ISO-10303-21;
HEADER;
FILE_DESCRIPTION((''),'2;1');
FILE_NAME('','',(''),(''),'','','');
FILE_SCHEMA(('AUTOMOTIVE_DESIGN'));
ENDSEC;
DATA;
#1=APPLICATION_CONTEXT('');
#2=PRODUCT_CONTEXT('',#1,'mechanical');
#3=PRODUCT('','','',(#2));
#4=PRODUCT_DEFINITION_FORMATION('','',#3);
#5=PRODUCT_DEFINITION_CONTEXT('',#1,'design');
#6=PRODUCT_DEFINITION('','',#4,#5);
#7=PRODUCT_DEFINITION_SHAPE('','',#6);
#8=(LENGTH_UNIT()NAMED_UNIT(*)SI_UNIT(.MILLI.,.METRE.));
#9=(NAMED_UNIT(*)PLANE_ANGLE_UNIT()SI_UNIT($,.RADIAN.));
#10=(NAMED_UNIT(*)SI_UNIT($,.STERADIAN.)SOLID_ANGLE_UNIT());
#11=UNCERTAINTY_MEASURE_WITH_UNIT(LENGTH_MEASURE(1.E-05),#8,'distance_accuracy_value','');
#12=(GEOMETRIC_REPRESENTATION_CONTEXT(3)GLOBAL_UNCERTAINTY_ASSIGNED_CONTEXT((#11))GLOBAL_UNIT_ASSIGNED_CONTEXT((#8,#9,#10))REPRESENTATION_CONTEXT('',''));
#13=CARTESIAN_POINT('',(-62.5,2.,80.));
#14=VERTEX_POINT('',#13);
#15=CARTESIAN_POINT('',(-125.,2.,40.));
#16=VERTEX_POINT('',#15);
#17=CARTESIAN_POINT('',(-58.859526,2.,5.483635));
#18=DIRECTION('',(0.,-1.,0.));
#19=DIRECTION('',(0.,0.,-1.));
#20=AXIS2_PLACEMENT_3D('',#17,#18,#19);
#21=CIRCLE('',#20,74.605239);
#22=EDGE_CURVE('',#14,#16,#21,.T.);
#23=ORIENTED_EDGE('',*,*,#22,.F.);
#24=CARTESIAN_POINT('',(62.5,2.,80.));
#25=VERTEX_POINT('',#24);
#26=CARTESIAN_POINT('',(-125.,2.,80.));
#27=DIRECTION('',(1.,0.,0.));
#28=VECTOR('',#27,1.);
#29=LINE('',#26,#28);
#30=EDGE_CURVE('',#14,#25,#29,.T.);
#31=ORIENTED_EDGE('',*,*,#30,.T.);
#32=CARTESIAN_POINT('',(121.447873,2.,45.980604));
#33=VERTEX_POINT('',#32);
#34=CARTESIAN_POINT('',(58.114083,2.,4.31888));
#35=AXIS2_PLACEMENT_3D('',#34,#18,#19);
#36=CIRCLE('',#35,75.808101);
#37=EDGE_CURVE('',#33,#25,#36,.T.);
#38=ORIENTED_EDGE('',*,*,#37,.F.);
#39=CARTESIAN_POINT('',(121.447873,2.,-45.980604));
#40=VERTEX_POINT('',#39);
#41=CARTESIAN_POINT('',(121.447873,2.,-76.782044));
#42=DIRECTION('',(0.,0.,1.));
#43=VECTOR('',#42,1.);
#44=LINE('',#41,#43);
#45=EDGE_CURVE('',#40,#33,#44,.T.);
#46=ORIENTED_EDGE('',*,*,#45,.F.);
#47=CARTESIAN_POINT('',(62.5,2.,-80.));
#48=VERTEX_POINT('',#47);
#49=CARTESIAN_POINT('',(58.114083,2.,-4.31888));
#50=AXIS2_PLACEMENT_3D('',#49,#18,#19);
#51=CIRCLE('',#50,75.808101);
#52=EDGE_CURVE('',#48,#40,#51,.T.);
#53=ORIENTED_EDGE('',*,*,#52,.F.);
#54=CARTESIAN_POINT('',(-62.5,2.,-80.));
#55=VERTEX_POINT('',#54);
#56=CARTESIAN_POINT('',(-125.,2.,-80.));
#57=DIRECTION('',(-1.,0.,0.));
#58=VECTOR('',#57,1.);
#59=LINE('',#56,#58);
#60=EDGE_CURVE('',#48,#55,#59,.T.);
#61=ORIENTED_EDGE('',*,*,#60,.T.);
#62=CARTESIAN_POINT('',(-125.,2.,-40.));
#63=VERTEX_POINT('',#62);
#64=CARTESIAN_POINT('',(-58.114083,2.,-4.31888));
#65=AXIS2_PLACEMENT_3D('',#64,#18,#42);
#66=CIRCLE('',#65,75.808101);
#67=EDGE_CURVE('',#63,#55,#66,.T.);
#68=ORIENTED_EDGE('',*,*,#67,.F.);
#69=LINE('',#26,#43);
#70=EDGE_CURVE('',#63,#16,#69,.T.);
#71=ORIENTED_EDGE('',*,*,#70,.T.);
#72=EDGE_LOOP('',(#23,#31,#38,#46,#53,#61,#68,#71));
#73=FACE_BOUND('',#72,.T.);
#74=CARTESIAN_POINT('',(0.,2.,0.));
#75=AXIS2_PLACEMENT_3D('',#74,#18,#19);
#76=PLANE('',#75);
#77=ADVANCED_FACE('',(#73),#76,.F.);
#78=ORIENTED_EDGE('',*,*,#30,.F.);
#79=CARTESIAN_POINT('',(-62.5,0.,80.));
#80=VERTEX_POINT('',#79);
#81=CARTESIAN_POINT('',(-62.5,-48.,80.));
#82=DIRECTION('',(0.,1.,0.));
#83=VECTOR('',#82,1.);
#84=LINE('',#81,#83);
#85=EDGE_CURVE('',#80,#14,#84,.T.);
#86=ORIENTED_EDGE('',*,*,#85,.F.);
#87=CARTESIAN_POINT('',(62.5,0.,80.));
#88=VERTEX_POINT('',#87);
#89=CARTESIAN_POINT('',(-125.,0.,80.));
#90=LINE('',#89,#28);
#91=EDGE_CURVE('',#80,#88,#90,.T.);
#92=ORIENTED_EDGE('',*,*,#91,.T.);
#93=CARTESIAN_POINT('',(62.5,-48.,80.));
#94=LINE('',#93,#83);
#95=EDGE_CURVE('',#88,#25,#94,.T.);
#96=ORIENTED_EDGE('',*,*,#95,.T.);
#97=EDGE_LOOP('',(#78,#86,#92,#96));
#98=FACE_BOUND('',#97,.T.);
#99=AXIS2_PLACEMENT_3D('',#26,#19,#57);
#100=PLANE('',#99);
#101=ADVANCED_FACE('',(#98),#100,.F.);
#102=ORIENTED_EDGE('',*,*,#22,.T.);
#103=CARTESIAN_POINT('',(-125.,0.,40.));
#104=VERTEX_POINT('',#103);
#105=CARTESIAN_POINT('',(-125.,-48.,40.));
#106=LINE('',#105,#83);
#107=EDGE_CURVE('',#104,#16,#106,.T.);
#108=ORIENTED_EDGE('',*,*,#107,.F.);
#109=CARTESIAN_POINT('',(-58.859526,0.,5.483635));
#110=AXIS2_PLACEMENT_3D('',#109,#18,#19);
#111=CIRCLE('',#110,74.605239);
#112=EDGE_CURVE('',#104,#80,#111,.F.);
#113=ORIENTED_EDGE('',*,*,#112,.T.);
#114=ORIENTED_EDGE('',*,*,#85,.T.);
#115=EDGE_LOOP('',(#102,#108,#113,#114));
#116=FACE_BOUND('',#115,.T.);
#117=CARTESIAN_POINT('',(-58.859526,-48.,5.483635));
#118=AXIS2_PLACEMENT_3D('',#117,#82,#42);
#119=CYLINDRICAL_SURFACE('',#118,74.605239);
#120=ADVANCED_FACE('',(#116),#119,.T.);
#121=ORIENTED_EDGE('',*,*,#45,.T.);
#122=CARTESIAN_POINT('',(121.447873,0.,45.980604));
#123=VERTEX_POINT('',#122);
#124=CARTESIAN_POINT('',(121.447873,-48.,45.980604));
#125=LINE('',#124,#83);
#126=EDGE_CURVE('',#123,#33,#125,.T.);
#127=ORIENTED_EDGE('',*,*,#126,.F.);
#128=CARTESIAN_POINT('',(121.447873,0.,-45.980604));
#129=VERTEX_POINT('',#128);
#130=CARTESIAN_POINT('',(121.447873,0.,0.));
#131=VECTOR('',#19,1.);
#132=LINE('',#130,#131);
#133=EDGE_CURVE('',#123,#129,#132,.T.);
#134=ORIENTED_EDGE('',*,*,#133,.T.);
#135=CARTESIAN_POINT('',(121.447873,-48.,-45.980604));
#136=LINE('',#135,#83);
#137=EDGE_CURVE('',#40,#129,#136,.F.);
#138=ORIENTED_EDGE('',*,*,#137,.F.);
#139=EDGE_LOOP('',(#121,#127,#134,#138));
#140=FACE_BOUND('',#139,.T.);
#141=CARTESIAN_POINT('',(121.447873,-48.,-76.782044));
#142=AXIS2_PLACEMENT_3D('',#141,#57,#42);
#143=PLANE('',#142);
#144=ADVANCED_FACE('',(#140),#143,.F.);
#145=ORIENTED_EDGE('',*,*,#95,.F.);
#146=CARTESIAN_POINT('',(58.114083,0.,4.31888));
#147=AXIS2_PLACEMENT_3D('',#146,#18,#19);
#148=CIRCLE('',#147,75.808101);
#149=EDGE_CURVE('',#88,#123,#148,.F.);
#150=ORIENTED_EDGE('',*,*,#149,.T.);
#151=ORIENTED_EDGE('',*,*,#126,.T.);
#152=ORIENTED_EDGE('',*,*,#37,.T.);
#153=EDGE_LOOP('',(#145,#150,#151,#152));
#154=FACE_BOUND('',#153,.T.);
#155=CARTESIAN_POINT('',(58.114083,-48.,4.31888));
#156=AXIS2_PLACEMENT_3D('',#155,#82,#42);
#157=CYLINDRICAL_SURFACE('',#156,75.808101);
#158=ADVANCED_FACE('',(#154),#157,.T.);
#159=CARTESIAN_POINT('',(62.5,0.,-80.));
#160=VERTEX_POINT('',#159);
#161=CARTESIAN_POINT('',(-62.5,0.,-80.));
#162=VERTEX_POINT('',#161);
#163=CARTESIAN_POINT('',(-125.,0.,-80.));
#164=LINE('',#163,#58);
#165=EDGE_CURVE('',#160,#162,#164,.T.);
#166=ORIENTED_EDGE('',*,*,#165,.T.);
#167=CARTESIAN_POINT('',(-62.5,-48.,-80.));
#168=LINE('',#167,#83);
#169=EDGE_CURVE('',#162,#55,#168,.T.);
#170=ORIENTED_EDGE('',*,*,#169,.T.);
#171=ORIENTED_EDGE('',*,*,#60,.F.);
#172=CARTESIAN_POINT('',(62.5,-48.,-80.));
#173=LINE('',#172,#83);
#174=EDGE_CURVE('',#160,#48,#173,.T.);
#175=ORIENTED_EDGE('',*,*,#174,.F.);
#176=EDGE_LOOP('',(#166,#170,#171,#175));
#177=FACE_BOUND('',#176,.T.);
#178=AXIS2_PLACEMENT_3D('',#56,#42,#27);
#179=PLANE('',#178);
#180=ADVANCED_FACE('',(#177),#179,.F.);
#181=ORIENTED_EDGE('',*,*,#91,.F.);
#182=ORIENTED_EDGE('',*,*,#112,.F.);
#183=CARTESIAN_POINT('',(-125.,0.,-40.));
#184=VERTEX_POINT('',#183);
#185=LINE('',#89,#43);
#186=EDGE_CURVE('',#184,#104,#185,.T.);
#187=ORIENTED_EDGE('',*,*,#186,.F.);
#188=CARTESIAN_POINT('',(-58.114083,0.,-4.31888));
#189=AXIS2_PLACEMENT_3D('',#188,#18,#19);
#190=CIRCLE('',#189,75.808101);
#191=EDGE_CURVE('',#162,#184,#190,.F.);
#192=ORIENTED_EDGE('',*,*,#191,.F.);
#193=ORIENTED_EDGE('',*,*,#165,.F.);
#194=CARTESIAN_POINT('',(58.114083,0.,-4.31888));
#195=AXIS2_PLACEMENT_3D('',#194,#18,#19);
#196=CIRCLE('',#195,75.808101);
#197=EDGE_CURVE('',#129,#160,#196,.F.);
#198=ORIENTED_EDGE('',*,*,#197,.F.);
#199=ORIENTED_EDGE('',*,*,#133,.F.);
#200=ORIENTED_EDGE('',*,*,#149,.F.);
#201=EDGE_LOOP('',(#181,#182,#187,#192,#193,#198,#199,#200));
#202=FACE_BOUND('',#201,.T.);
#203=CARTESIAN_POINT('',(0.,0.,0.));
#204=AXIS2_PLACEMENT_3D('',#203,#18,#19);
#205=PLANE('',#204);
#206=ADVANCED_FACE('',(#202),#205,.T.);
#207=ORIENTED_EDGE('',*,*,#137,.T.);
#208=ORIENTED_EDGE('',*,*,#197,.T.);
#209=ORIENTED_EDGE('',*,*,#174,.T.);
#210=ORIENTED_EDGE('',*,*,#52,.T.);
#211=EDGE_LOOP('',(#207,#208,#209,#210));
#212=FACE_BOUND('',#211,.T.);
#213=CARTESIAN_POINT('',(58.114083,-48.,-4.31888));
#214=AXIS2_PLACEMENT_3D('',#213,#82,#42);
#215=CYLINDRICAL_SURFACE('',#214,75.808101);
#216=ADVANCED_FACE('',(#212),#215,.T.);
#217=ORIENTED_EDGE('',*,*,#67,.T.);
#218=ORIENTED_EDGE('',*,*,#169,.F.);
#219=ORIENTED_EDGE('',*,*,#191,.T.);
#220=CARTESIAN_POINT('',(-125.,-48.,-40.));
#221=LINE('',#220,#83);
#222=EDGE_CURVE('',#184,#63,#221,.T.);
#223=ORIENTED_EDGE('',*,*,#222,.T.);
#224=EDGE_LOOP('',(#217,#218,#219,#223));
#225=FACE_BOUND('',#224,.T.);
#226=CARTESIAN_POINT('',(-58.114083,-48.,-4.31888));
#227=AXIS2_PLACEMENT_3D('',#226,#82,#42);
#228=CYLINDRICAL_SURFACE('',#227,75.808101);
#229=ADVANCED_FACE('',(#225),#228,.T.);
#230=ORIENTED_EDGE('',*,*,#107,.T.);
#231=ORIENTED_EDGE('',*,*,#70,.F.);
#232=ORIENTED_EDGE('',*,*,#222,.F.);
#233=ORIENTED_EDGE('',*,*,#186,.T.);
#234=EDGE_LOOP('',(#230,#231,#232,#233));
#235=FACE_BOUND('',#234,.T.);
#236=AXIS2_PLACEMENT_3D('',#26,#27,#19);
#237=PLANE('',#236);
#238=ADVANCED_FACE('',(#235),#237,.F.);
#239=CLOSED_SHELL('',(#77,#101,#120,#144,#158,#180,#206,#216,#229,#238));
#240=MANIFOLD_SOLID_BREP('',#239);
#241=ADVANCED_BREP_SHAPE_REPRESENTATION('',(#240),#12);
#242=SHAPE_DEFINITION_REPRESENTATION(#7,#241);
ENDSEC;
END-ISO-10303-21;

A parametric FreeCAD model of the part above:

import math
import FreeCAD as App
import Part
import Sketcher

V = App.Vector
Q = App.Units.Quantity


def add_polygon(sketch, points):
    """Adds a closed chain of lines whose ends are joined by coincident constraints."""
    first, n = sketch.GeometryCount, len(points)
    for a, b in zip(points, points[1:] + points[:1]):
        sketch.addGeometry(Part.LineSegment(App.Vector(*a, 0), App.Vector(*b, 0)), False)
    for i in range(n):
        sketch.addConstraint(Sketcher.Constraint("Coincident", first + i, 2, first + (i + 1) % n, 1))

doc = App.newDocument("Part")
body = doc.addObject("PartDesign::Body", "Body")

sketch1 = body.newObject("Sketcher::SketchObject", "Sketch")
sketch1.AttachmentSupport = (doc.getObject("XZ_Plane"), [""])
sketch1.MapMode = "FlatFace"
add_polygon(sketch1, [(-125, -80), (-125, 80), (125, 80), (125, -80)])
sketch1.addConstraint([
    Sketcher.Constraint("Vertical", 0),
    Sketcher.Constraint("Horizontal", 1),
    Sketcher.Constraint("Vertical", 2),
    Sketcher.Constraint("Horizontal", 3),
    Sketcher.Constraint("Symmetric", 0, 2, 2, 2, -1, 1),
    Sketcher.Constraint("DistanceX", 1, 1, 1, 2, Q("250 mm")),
    Sketcher.Constraint("DistanceY", 0, 1, 0, 2, Q("160 mm")),
])
pad1 = body.newObject("PartDesign::Pad", "Pad")
pad1.Profile = sketch1
pad1.Length = 2
pad1.Reversed = True

sketch2 = body.newObject("Sketcher::SketchObject", "Sketch001")
sketch2.AttachmentSupport = (doc.getObject("XZ_Plane"), [""])
sketch2.MapMode = "FlatFace"
sketch2.AttachmentOffset = App.Placement(V(0, 0, -2), App.Rotation())
sketch2.addGeometry([
    Part.LineSegment(V(-125, -80, 0), V(-125, -40, 0)),
    Part.ArcOfCircle(Part.Circle(V(-58.114083, -4.31888, 0), V(0, 0, 1), 75.808101), math.radians(-151.921757), math.radians(-93.316729)),
    Part.LineSegment(V(-62.5, -80, 0), V(-125, -80, 0)),
    Part.LineSegment(V(125, -80, 0), V(62.5, -80, 0)),
    Part.ArcOfCircle(Part.Circle(V(58.114083, -4.31888, 0), V(0, 0, 1), 75.808101), math.radians(-86.683271), math.radians(-28.078243)),
    Part.LineSegment(V(125, -40, 0), V(125, -80, 0)),
    Part.LineSegment(V(125, 80, 0), V(125, 40, 0)),
    Part.ArcOfCircle(Part.Circle(V(58.114083, 4.31888, 0), V(0, 0, 1), 75.808101), math.radians(28.078243), math.radians(86.683271)),
    Part.LineSegment(V(62.5, 80, 0), V(125, 80, 0)),
    Part.LineSegment(V(-125, 80, 0), V(-62.5, 80, 0)),
    Part.ArcOfCircle(Part.Circle(V(-58.859526, 5.483635, 0), V(0, 0, 1), 74.605239), math.radians(92.796944), math.radians(152.441543)),
    Part.LineSegment(V(-125, 40, 0), V(-125, 80, 0)),
], False)
sketch2.addConstraint([
    Sketcher.Constraint("Coincident", 0, 2, 1, 1),
    Sketcher.Constraint("Coincident", 1, 2, 2, 1),
    Sketcher.Constraint("Coincident", 2, 2, 0, 1),
    Sketcher.Constraint("Coincident", 3, 2, 4, 1),
    Sketcher.Constraint("Coincident", 4, 2, 5, 1),
    Sketcher.Constraint("Coincident", 5, 2, 3, 1),
    Sketcher.Constraint("Coincident", 6, 2, 7, 1),
    Sketcher.Constraint("Coincident", 7, 2, 8, 1),
    Sketcher.Constraint("Coincident", 8, 2, 6, 1),
    Sketcher.Constraint("Coincident", 9, 2, 10, 1),
    Sketcher.Constraint("Coincident", 10, 2, 11, 1),
    Sketcher.Constraint("Coincident", 11, 2, 9, 1),
    Sketcher.Constraint("Vertical", 0),
    Sketcher.Constraint("Horizontal", 2),
    Sketcher.Constraint("Horizontal", 3),
    Sketcher.Constraint("Vertical", 5),
    Sketcher.Constraint("Vertical", 6),
    Sketcher.Constraint("Horizontal", 8),
    Sketcher.Constraint("Horizontal", 9),
    Sketcher.Constraint("Vertical", 11),
    Sketcher.Constraint("Equal", 1, 4),
    Sketcher.Constraint("Equal", 4, 7),
    Sketcher.Constraint("Symmetric", 1, 3, 7, 3, -1, 1),
    Sketcher.Constraint("Symmetric", 2, 2, 8, 2, -1, 1),
    Sketcher.Constraint("Symmetric", 3, 2, 9, 2, -1, 1),
    Sketcher.Constraint("Symmetric", 4, 2, 10, 2, -1, 1),
    Sketcher.Constraint("Symmetric", 1, 3, 4, 3, -2),
    Sketcher.Constraint("Symmetric", 2, 2, 5, 2, -2),
    Sketcher.Constraint("DistanceY", 0, 1, 0, 2, Q("40 mm")),
    Sketcher.Constraint("DistanceX", 2, 2, 2, 1, Q("62.5 mm")),
    Sketcher.Constraint("DistanceX", 0, 2, -1, 1, Q("125 mm")),
    Sketcher.Constraint("DistanceY", 0, 2, -1, 1, Q("40 mm")),
    Sketcher.Constraint("Radius", 1, Q("75.808101 mm")),
    Sketcher.Constraint("Radius", 10, Q("74.605239 mm")),
])
pocket1 = body.newObject("PartDesign::Pocket", "Pocket")
pocket1.Profile = sketch2
pocket1.Length = 50
pocket1.Reversed = True

sketch3 = body.newObject("Sketcher::SketchObject", "Sketch002")
sketch3.AttachmentSupport = (doc.getObject("XZ_Plane"), [""])
sketch3.MapMode = "FlatFace"
sketch3.AttachmentOffset = App.Placement(V(0, 0, -2), App.Rotation())
add_polygon(sketch3, [(121.447873, -76.782044), (121.447873, 68.145751), (125, 68.145751), (125, -76.782044)])
sketch3.addConstraint([
    Sketcher.Constraint("Vertical", 0),
    Sketcher.Constraint("Horizontal", 1),
    Sketcher.Constraint("Vertical", 2),
    Sketcher.Constraint("Horizontal", 3),
    Sketcher.Constraint("DistanceX", -1, 1, 1, 2, Q("125 mm")),
    Sketcher.Constraint("DistanceX", 1, 1, 1, 2, Q("3.552127 mm")),
    Sketcher.Constraint("DistanceY", 0, 1, 0, 2, Q("144.927795 mm")),
    Sketcher.Constraint("DistanceY", -1, 1, 0, 2, Q("68.145751 mm")),
])
pocket2 = body.newObject("PartDesign::Pocket", "Pocket001")
pocket2.Profile = sketch3
pocket2.Length = 50
pocket2.Reversed = True

doc.recompute()
